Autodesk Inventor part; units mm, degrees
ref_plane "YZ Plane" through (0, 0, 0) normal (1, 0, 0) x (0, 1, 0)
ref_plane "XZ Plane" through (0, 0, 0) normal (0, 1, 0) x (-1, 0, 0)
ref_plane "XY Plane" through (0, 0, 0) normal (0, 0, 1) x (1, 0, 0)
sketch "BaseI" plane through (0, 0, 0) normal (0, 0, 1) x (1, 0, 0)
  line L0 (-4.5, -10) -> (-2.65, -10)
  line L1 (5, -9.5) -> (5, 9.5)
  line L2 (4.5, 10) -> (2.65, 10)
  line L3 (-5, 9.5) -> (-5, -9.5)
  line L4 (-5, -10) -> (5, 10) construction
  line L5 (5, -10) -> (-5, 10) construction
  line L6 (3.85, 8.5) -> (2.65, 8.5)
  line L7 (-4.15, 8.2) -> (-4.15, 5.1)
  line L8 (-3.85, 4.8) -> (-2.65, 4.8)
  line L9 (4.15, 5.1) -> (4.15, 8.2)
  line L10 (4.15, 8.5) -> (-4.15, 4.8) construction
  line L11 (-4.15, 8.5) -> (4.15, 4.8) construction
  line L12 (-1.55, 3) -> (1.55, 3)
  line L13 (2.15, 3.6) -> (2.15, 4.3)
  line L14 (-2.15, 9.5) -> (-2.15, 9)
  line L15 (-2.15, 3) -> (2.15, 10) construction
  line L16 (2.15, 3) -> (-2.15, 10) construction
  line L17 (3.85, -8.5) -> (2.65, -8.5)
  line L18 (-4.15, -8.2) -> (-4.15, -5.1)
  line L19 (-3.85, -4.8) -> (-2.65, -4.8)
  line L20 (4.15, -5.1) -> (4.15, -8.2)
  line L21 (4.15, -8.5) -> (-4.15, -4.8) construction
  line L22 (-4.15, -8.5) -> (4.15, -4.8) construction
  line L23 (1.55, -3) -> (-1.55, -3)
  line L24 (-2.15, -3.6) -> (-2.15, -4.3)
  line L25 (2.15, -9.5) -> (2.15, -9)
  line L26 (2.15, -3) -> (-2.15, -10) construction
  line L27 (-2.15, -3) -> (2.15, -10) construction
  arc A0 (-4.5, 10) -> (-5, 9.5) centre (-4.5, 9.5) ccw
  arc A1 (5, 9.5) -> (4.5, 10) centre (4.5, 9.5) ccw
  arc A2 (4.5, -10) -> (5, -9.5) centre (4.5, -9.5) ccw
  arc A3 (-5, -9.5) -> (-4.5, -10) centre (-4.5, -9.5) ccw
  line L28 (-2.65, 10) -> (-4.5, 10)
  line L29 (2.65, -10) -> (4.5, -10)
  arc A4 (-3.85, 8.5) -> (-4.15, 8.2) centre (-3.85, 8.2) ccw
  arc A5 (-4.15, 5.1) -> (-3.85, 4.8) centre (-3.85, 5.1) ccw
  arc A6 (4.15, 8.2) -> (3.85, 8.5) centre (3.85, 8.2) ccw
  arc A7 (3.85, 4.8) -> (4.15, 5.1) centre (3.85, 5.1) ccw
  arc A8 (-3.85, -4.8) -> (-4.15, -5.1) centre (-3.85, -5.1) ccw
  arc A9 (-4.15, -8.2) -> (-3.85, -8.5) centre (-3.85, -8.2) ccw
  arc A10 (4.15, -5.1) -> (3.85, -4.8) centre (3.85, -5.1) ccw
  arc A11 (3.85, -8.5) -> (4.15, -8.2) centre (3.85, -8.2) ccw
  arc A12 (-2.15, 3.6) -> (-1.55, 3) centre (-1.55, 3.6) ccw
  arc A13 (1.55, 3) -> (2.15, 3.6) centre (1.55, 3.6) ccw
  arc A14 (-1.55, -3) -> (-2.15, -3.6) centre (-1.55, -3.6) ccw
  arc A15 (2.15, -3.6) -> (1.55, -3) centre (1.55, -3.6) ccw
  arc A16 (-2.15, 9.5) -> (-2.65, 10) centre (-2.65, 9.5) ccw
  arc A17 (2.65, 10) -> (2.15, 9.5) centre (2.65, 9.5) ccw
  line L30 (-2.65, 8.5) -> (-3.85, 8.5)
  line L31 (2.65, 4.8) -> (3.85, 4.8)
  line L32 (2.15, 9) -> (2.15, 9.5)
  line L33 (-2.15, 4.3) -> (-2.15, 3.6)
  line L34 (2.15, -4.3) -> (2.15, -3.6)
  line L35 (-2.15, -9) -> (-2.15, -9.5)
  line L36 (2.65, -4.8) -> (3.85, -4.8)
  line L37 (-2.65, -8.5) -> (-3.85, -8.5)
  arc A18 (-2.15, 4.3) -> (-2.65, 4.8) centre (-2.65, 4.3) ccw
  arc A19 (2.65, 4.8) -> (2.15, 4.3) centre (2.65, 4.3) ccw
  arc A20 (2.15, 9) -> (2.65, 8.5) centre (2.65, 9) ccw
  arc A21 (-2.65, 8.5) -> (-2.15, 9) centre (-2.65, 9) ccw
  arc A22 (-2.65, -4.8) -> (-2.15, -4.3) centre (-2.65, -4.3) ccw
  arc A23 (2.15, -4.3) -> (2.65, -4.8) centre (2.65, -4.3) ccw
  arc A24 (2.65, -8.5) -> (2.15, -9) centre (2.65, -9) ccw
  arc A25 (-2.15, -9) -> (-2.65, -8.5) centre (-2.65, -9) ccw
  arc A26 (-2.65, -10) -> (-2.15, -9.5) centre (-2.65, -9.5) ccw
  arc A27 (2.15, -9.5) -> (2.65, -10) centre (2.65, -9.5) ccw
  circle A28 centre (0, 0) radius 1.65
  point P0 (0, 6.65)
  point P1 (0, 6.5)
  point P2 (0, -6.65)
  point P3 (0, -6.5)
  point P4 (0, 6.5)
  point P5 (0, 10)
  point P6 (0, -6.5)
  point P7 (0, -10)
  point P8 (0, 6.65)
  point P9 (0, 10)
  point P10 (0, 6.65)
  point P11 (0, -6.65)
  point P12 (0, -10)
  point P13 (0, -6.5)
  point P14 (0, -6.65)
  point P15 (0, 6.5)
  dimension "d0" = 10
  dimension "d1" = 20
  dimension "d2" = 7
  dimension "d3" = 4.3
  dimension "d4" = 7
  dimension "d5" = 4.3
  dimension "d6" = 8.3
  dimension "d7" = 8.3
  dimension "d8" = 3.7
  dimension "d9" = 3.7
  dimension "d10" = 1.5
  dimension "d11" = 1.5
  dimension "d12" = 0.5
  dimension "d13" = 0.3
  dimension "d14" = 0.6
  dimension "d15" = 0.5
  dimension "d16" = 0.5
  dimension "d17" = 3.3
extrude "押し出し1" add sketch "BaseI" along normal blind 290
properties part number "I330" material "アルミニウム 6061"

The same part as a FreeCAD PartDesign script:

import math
import FreeCAD as App
import Part
import Sketcher

V = App.Vector
Q = App.Units.Quantity

doc = App.newDocument("Part")
body = doc.addObject("PartDesign::Body", "Body")

sketch1 = body.newObject("Sketcher::SketchObject", "Sketch")
sketch1.AttachmentSupport = (doc.getObject("XY_Plane"), [""])
sketch1.MapMode = "FlatFace"
sketch1.addGeometry(Part.ArcOfCircle(Part.Circle(V(-4.5, -9.5, 0), V(0, 0, 1), 0.5), math.radians(180), math.radians(270)), False)
sketch1.addGeometry(Part.LineSegment(V(-4.5, -10, 0), V(-2.65, -10, 0)), False)
sketch1.addGeometry(Part.ArcOfCircle(Part.Circle(V(-2.65, -9.5, 0), V(0, 0, 1), 0.5), math.radians(-90), math.radians(0)), False)
sketch1.addGeometry(Part.LineSegment(V(-2.15, -9.5, 0), V(-2.15, -9, 0)), False)
sketch1.addGeometry(Part.ArcOfCircle(Part.Circle(V(-2.65, -9, 0), V(0, 0, 1), 0.5), math.radians(0), math.radians(90)), False)
sketch1.addGeometry(Part.LineSegment(V(-2.65, -8.5, 0), V(-3.85, -8.5, 0)), False)
sketch1.addGeometry(Part.ArcOfCircle(Part.Circle(V(-3.85, -8.2, 0), V(0, 0, 1), 0.3), math.radians(180), math.radians(270)), False)
sketch1.addGeometry(Part.LineSegment(V(-4.15, -8.2, 0), V(-4.15, -5.1, 0)), False)
sketch1.addGeometry(Part.ArcOfCircle(Part.Circle(V(-3.85, -5.1, 0), V(0, 0, 1), 0.3), math.radians(90), math.radians(180)), False)
sketch1.addGeometry(Part.LineSegment(V(-3.85, -4.8, 0), V(-2.65, -4.8, 0)), False)
sketch1.addGeometry(Part.ArcOfCircle(Part.Circle(V(-2.65, -4.3, 0), V(0, 0, 1), 0.5), math.radians(-90), math.radians(0)), False)
sketch1.addGeometry(Part.LineSegment(V(-2.15, -4.3, 0), V(-2.15, -3.6, 0)), False)
sketch1.addGeometry(Part.ArcOfCircle(Part.Circle(V(-1.55, -3.6, 0), V(0, 0, 1), 0.6), math.radians(90), math.radians(180)), False)
sketch1.addGeometry(Part.LineSegment(V(-1.55, -3, 0), V(1.55, -3, 0)), False)
sketch1.addGeometry(Part.ArcOfCircle(Part.Circle(V(1.55, -3.6, 0), V(0, 0, 1), 0.6), math.radians(0), math.radians(90)), False)
sketch1.addGeometry(Part.LineSegment(V(2.15, -3.6, 0), V(2.15, -4.3, 0)), False)
sketch1.addGeometry(Part.ArcOfCircle(Part.Circle(V(2.65, -4.3, 0), V(0, 0, 1), 0.5), math.radians(180), math.radians(270)), False)
sketch1.addGeometry(Part.LineSegment(V(2.65, -4.8, 0), V(3.85, -4.8, 0)), False)
sketch1.addGeometry(Part.ArcOfCircle(Part.Circle(V(3.85, -5.1, 0), V(0, 0, 1), 0.3), math.radians(0), math.radians(90)), False)
sketch1.addGeometry(Part.LineSegment(V(4.15, -5.1, 0), V(4.15, -8.2, 0)), False)
sketch1.addGeometry(Part.ArcOfCircle(Part.Circle(V(3.85, -8.2, 0), V(0, 0, 1), 0.3), math.radians(-90), math.radians(0)), False)
sketch1.addGeometry(Part.LineSegment(V(3.85, -8.5, 0), V(2.65, -8.5, 0)), False)
sketch1.addGeometry(Part.ArcOfCircle(Part.Circle(V(2.65, -9, 0), V(0, 0, 1), 0.5), math.radians(90), math.radians(180)), False)
sketch1.addGeometry(Part.LineSegment(V(2.15, -9, 0), V(2.15, -9.5, 0)), False)
sketch1.addGeometry(Part.ArcOfCircle(Part.Circle(V(2.65, -9.5, 0), V(0, 0, 1), 0.5), math.radians(180), math.radians(270)), False)
sketch1.addGeometry(Part.LineSegment(V(2.65, -10, 0), V(4.5, -10, 0)), False)
sketch1.addGeometry(Part.ArcOfCircle(Part.Circle(V(4.5, -9.5, 0), V(0, 0, 1), 0.5), math.radians(-90), math.radians(0)), False)
sketch1.addGeometry(Part.LineSegment(V(5, -9.5, 0), V(5, 9.5, 0)), False)
sketch1.addGeometry(Part.ArcOfCircle(Part.Circle(V(4.5, 9.5, 0), V(0, 0, 1), 0.5), math.radians(0), math.radians(90)), False)
sketch1.addGeometry(Part.LineSegment(V(4.5, 10, 0), V(2.65, 10, 0)), False)
sketch1.addGeometry(Part.ArcOfCircle(Part.Circle(V(2.65, 9.5, 0), V(0, 0, 1), 0.5), math.radians(90), math.radians(180)), False)
sketch1.addGeometry(Part.LineSegment(V(2.15, 9.5, 0), V(2.15, 9, 0)), False)
sketch1.addGeometry(Part.ArcOfCircle(Part.Circle(V(2.65, 9, 0), V(0, 0, 1), 0.5), math.radians(180), math.radians(270)), False)
sketch1.addGeometry(Part.LineSegment(V(2.65, 8.5, 0), V(3.85, 8.5, 0)), False)
sketch1.addGeometry(Part.ArcOfCircle(Part.Circle(V(3.85, 8.2, 0), V(0, 0, 1), 0.3), math.radians(0), math.radians(90)), False)
sketch1.addGeometry(Part.LineSegment(V(4.15, 8.2, 0), V(4.15, 5.1, 0)), False)
sketch1.addGeometry(Part.ArcOfCircle(Part.Circle(V(3.85, 5.1, 0), V(0, 0, 1), 0.3), math.radians(-90), math.radians(0)), False)
sketch1.addGeometry(Part.LineSegment(V(3.85, 4.8, 0), V(2.65, 4.8, 0)), False)
sketch1.addGeometry(Part.ArcOfCircle(Part.Circle(V(2.65, 4.3, 0), V(0, 0, 1), 0.5), math.radians(90), math.radians(180)), False)
sketch1.addGeometry(Part.LineSegment(V(2.15, 4.3, 0), V(2.15, 3.6, 0)), False)
sketch1.addGeometry(Part.ArcOfCircle(Part.Circle(V(1.55, 3.6, 0), V(0, 0, 1), 0.6), math.radians(-90), math.radians(0)), False)
sketch1.addGeometry(Part.LineSegment(V(1.55, 3, 0), V(-1.55, 3, 0)), False)
sketch1.addGeometry(Part.ArcOfCircle(Part.Circle(V(-1.55, 3.6, 0), V(0, 0, 1), 0.6), math.radians(180), math.radians(270)), False)
sketch1.addGeometry(Part.LineSegment(V(-2.15, 3.6, 0), V(-2.15, 4.3, 0)), False)
sketch1.addGeometry(Part.ArcOfCircle(Part.Circle(V(-2.65, 4.3, 0), V(0, 0, 1), 0.5), math.radians(0), math.radians(90)), False)
sketch1.addGeometry(Part.LineSegment(V(-2.65, 4.8, 0), V(-3.85, 4.8, 0)), False)
sketch1.addGeometry(Part.ArcOfCircle(Part.Circle(V(-3.85, 5.1, 0), V(0, 0, 1), 0.3), math.radians(180), math.radians(270)), False)
sketch1.addGeometry(Part.LineSegment(V(-4.15, 5.1, 0), V(-4.15, 8.2, 0)), False)
sketch1.addGeometry(Part.ArcOfCircle(Part.Circle(V(-3.85, 8.2, 0), V(0, 0, 1), 0.3), math.radians(90), math.radians(180)), False)
sketch1.addGeometry(Part.LineSegment(V(-3.85, 8.5, 0), V(-2.65, 8.5, 0)), False)
sketch1.addGeometry(Part.ArcOfCircle(Part.Circle(V(-2.65, 9, 0), V(0, 0, 1), 0.5), math.radians(-90), math.radians(0)), False)
sketch1.addGeometry(Part.LineSegment(V(-2.15, 9, 0), V(-2.15, 9.5, 0)), False)
sketch1.addGeometry(Part.ArcOfCircle(Part.Circle(V(-2.65, 9.5, 0), V(0, 0, 1), 0.5), math.radians(0), math.radians(90)), False)
sketch1.addGeometry(Part.LineSegment(V(-2.65, 10, 0), V(-4.5, 10, 0)), False)
sketch1.addGeometry(Part.ArcOfCircle(Part.Circle(V(-4.5, 9.5, 0), V(0, 0, 1), 0.5), math.radians(90), math.radians(180)), False)
sketch1.addGeometry(Part.LineSegment(V(-5, 9.5, 0), V(-5, -9.5, 0)), False)
sketch1.addGeometry(Part.Circle(V(0, 0, 0), V(0, 0, 1), 1.65), False)
sketch1.addConstraint(Sketcher.Constraint("Tangent", 0, 2, 1, 1))
sketch1.addConstraint(Sketcher.Constraint("Tangent", 1, 2, 2, 1))
sketch1.addConstraint(Sketcher.Constraint("Tangent", 2, 2, 3, 1))
sketch1.addConstraint(Sketcher.Constraint("Tangent", 3, 2, 4, 1))
sketch1.addConstraint(Sketcher.Constraint("Tangent", 4, 2, 5, 1))
sketch1.addConstraint(Sketcher.Constraint("Tangent", 5, 2, 6, 2))
sketch1.addConstraint(Sketcher.Constraint("Tangent", 6, 1, 7, 1))
sketch1.addConstraint(Sketcher.Constraint("Tangent", 7, 2, 8, 2))
sketch1.addConstraint(Sketcher.Constraint("Tangent", 8, 1, 9, 1))
sketch1.addConstraint(Sketcher.Constraint("Tangent", 9, 2, 10, 1))
sketch1.addConstraint(Sketcher.Constraint("Tangent", 10, 2, 11, 1))
sketch1.addConstraint(Sketcher.Constraint("Tangent", 11, 2, 12, 2))
sketch1.addConstraint(Sketcher.Constraint("Tangent", 12, 1, 13, 1))
sketch1.addConstraint(Sketcher.Constraint("Tangent", 13, 2, 14, 2))
sketch1.addConstraint(Sketcher.Constraint("Tangent", 14, 1, 15, 1))
sketch1.addConstraint(Sketcher.Constraint("Tangent", 15, 2, 16, 1))
sketch1.addConstraint(Sketcher.Constraint("Tangent", 16, 2, 17, 1))
sketch1.addConstraint(Sketcher.Constraint("Tangent", 17, 2, 18, 2))
sketch1.addConstraint(Sketcher.Constraint("Tangent", 18, 1, 19, 1))
sketch1.addConstraint(Sketcher.Constraint("Tangent", 19, 2, 20, 2))
sketch1.addConstraint(Sketcher.Constraint("Tangent", 20, 1, 21, 1))
sketch1.addConstraint(Sketcher.Constraint("Tangent", 21, 2, 22, 1))
sketch1.addConstraint(Sketcher.Constraint("Tangent", 22, 2, 23, 1))
sketch1.addConstraint(Sketcher.Constraint("Tangent", 23, 2, 24, 1))
sketch1.addConstraint(Sketcher.Constraint("Tangent", 24, 2, 25, 1))
sketch1.addConstraint(Sketcher.Constraint("Tangent", 25, 2, 26, 1))
sketch1.addConstraint(Sketcher.Constraint("Tangent", 26, 2, 27, 1))
sketch1.addConstraint(Sketcher.Constraint("Tangent", 27, 2, 28, 1))
sketch1.addConstraint(Sketcher.Constraint("Tangent", 28, 2, 29, 1))
sketch1.addConstraint(Sketcher.Constraint("Tangent", 29, 2, 30, 1))
sketch1.addConstraint(Sketcher.Constraint("Tangent", 30, 2, 31, 1))
sketch1.addConstraint(Sketcher.Constraint("Tangent", 31, 2, 32, 1))
sketch1.addConstraint(Sketcher.Constraint("Tangent", 32, 2, 33, 1))
sketch1.addConstraint(Sketcher.Constraint("Tangent", 33, 2, 34, 2))
sketch1.addConstraint(Sketcher.Constraint("Tangent", 34, 1, 35, 1))
sketch1.addConstraint(Sketcher.Constraint("Tangent", 35, 2, 36, 2))
sketch1.addConstraint(Sketcher.Constraint("Tangent", 36, 1, 37, 1))
sketch1.addConstraint(Sketcher.Constraint("Tangent", 37, 2, 38, 1))
sketch1.addConstraint(Sketcher.Constraint("Tangent", 38, 2, 39, 1))
sketch1.addConstraint(Sketcher.Constraint("Tangent", 39, 2, 40, 2))
sketch1.addConstraint(Sketcher.Constraint("Tangent", 40, 1, 41, 1))
sketch1.addConstraint(Sketcher.Constraint("Tangent", 41, 2, 42, 2))
sketch1.addConstraint(Sketcher.Constraint("Tangent", 42, 1, 43, 1))
sketch1.addConstraint(Sketcher.Constraint("Tangent", 43, 2, 44, 1))
sketch1.addConstraint(Sketcher.Constraint("Tangent", 44, 2, 45, 1))
sketch1.addConstraint(Sketcher.Constraint("Tangent", 45, 2, 46, 2))
sketch1.addConstraint(Sketcher.Constraint("Tangent", 46, 1, 47, 1))
sketch1.addConstraint(Sketcher.Constraint("Tangent", 47, 2, 48, 2))
sketch1.addConstraint(Sketcher.Constraint("Tangent", 48, 1, 49, 1))
sketch1.addConstraint(Sketcher.Constraint("Tangent", 49, 2, 50, 1))
sketch1.addConstraint(Sketcher.Constraint("Tangent", 50, 2, 51, 1))
sketch1.addConstraint(Sketcher.Constraint("Tangent", 51, 2, 52, 1))
sketch1.addConstraint(Sketcher.Constraint("Tangent", 52, 2, 53, 1))
sketch1.addConstraint(Sketcher.Constraint("Tangent", 53, 2, 54, 1))
sketch1.addConstraint(Sketcher.Constraint("Tangent", 54, 2, 55, 1))
sketch1.addConstraint(Sketcher.Constraint("Tangent", 55, 2, 0, 1))
sketch1.addConstraint(Sketcher.Constraint("Horizontal", 1))
sketch1.addConstraint(Sketcher.Constraint("Vertical", 3))
sketch1.addConstraint(Sketcher.Constraint("Horizontal", 5))
sketch1.addConstraint(Sketcher.Constraint("Vertical", 7))
sketch1.addConstraint(Sketcher.Constraint("Horizontal", 9))
sketch1.addConstraint(Sketcher.Constraint("Vertical", 11))
sketch1.addConstraint(Sketcher.Constraint("Horizontal", 13))
sketch1.addConstraint(Sketcher.Constraint("Vertical", 15))
sketch1.addConstraint(Sketcher.Constraint("Horizontal", 17))
sketch1.addConstraint(Sketcher.Constraint("Vertical", 19))
sketch1.addConstraint(Sketcher.Constraint("Horizontal", 21))
sketch1.addConstraint(Sketcher.Constraint("Vertical", 23))
sketch1.addConstraint(Sketcher.Constraint("Horizontal", 25))
sketch1.addConstraint(Sketcher.Constraint("Vertical", 27))
sketch1.addConstraint(Sketcher.Constraint("Horizontal", 29))
sketch1.addConstraint(Sketcher.Constraint("Vertical", 31))
sketch1.addConstraint(Sketcher.Constraint("Horizontal", 33))
sketch1.addConstraint(Sketcher.Constraint("Vertical", 35))
sketch1.addConstraint(Sketcher.Constraint("Horizontal", 37))
sketch1.addConstraint(Sketcher.Constraint("Vertical", 39))
sketch1.addConstraint(Sketcher.Constraint("Horizontal", 41))
sketch1.addConstraint(Sketcher.Constraint("Vertical", 43))
sketch1.addConstraint(Sketcher.Constraint("Horizontal", 45))
sketch1.addConstraint(Sketcher.Constraint("Vertical", 47))
sketch1.addConstraint(Sketcher.Constraint("Horizontal", 49))
sketch1.addConstraint(Sketcher.Constraint("Vertical", 51))
sketch1.addConstraint(Sketcher.Constraint("Horizontal", 53))
sketch1.addConstraint(Sketcher.Constraint("Vertical", 55))
sketch1.addConstraint(Sketcher.Constraint("Coincident", 56, 3, -1, 1))
sketch1.addConstraint(Sketcher.Constraint("Equal", 0, 2))
sketch1.addConstraint(Sketcher.Constraint("Equal", 2, 4))
sketch1.addConstraint(Sketcher.Constraint("Equal", 6, 8))
sketch1.addConstraint(Sketcher.Constraint("Equal", 4, 10))
sketch1.addConstraint(Sketcher.Constraint("Equal", 12, 14))
sketch1.addConstraint(Sketcher.Constraint("Equal", 10, 16))
sketch1.addConstraint(Sketcher.Constraint("Equal", 8, 18))
sketch1.addConstraint(Sketcher.Constraint("Equal", 18, 20))
sketch1.addConstraint(Sketcher.Constraint("Equal", 16, 22))
sketch1.addConstraint(Sketcher.Constraint("Equal", 22, 24))
sketch1.addConstraint(Sketcher.Constraint("Equal", 24, 26))
sketch1.addConstraint(Sketcher.Constraint("Equal", 26, 28))
sketch1.addConstraint(Sketcher.Constraint("Equal", 28, 30))
sketch1.addConstraint(Sketcher.Constraint("Equal", 30, 32))
sketch1.addConstraint(Sketcher.Constraint("Equal", 20, 34))
sketch1.addConstraint(Sketcher.Constraint("Equal", 34, 36))
sketch1.addConstraint(Sketcher.Constraint("Equal", 32, 38))
sketch1.addConstraint(Sketcher.Constraint("Equal", 14, 40))
sketch1.addConstraint(Sketcher.Constraint("Equal", 40, 42))
sketch1.addConstraint(Sketcher.Constraint("Equal", 38, 44))
sketch1.addConstraint(Sketcher.Constraint("Equal", 36, 46))
sketch1.addConstraint(Sketcher.Constraint("Equal", 46, 48))
sketch1.addConstraint(Sketcher.Constraint("Equal", 44, 50))
sketch1.addConstraint(Sketcher.Constraint("Equal", 50, 52))
sketch1.addConstraint(Sketcher.Constraint("Equal", 52, 54))
sketch1.addConstraint(Sketcher.Constraint("Symmetric", 0, 3, 28, 3, -1, 1))
sketch1.addConstraint(Sketcher.Constraint("Symmetric", 4, 3, 32, 3, -1, 1))
sketch1.addConstraint(Sketcher.Constraint("Symmetric", 8, 3, 36, 3, -1, 1))
sketch1.addConstraint(Sketcher.Constraint("Symmetric", 12, 3, 40, 3, -1, 1))
sketch1.addConstraint(Sketcher.Constraint("Symmetric", 16, 3, 44, 3, -1, 1))
sketch1.addConstraint(Sketcher.Constraint("Symmetric", 20, 3, 48, 3, -1, 1))
sketch1.addConstraint(Sketcher.Constraint("Symmetric", 24, 3, 52, 3, -1, 1))
sketch1.addConstraint(Sketcher.Constraint("Symmetric", 10, 3, 16, 3, -2))
sketch1.addConstraint(Sketcher.Constraint("Symmetric", 6, 3, 20, 3, -2))
sketch1.addConstraint(Sketcher.Constraint("Symmetric", 2, 3, 24, 3, -2))
sketch1.addConstraint(Sketcher.Constraint("Vertical", 4, 3, 10, 3))
sketch1.addConstraint(Sketcher.Constraint("Equal", 41, 7))
sketch1.addConstraint(Sketcher.Constraint("Diameter", 56, Q("3.3 mm")))
sketch1.addConstraint(Sketcher.Constraint("Radius", 0, Q("0.5 mm")))
sketch1.addConstraint(Sketcher.Constraint("Radius", 6, Q("0.3 mm")))
sketch1.addConstraint(Sketcher.Constraint("Radius", 12, Q("0.6 mm")))
sketch1.addConstraint(Sketcher.Constraint("DistanceY", 3, 1, 3, 2, Q("0.5 mm")))
sketch1.addConstraint(Sketcher.Constraint("DistanceY", 0, 2, -1, 1, Q("10 mm")))
sketch1.addConstraint(Sketcher.Constraint("DistanceY", 10, 3, -1, 1, Q("4.3 mm")))
sketch1.addConstraint(Sketcher.Constraint("DistanceX", 5, 2, 5, 1, Q("1.2 mm")))
sketch1.addConstraint(Sketcher.Constraint("DistanceY", 11, 1, 11, 2, Q("0.7 mm")))
sketch1.addConstraint(Sketcher.Constraint("DistanceX", -1, 1, 26, 2, Q("5 mm")))
pad1 = body.newObject("PartDesign::Pad", "Pad")
pad1.Profile = sketch1
pad1.Length = 290

doc.recompute()
